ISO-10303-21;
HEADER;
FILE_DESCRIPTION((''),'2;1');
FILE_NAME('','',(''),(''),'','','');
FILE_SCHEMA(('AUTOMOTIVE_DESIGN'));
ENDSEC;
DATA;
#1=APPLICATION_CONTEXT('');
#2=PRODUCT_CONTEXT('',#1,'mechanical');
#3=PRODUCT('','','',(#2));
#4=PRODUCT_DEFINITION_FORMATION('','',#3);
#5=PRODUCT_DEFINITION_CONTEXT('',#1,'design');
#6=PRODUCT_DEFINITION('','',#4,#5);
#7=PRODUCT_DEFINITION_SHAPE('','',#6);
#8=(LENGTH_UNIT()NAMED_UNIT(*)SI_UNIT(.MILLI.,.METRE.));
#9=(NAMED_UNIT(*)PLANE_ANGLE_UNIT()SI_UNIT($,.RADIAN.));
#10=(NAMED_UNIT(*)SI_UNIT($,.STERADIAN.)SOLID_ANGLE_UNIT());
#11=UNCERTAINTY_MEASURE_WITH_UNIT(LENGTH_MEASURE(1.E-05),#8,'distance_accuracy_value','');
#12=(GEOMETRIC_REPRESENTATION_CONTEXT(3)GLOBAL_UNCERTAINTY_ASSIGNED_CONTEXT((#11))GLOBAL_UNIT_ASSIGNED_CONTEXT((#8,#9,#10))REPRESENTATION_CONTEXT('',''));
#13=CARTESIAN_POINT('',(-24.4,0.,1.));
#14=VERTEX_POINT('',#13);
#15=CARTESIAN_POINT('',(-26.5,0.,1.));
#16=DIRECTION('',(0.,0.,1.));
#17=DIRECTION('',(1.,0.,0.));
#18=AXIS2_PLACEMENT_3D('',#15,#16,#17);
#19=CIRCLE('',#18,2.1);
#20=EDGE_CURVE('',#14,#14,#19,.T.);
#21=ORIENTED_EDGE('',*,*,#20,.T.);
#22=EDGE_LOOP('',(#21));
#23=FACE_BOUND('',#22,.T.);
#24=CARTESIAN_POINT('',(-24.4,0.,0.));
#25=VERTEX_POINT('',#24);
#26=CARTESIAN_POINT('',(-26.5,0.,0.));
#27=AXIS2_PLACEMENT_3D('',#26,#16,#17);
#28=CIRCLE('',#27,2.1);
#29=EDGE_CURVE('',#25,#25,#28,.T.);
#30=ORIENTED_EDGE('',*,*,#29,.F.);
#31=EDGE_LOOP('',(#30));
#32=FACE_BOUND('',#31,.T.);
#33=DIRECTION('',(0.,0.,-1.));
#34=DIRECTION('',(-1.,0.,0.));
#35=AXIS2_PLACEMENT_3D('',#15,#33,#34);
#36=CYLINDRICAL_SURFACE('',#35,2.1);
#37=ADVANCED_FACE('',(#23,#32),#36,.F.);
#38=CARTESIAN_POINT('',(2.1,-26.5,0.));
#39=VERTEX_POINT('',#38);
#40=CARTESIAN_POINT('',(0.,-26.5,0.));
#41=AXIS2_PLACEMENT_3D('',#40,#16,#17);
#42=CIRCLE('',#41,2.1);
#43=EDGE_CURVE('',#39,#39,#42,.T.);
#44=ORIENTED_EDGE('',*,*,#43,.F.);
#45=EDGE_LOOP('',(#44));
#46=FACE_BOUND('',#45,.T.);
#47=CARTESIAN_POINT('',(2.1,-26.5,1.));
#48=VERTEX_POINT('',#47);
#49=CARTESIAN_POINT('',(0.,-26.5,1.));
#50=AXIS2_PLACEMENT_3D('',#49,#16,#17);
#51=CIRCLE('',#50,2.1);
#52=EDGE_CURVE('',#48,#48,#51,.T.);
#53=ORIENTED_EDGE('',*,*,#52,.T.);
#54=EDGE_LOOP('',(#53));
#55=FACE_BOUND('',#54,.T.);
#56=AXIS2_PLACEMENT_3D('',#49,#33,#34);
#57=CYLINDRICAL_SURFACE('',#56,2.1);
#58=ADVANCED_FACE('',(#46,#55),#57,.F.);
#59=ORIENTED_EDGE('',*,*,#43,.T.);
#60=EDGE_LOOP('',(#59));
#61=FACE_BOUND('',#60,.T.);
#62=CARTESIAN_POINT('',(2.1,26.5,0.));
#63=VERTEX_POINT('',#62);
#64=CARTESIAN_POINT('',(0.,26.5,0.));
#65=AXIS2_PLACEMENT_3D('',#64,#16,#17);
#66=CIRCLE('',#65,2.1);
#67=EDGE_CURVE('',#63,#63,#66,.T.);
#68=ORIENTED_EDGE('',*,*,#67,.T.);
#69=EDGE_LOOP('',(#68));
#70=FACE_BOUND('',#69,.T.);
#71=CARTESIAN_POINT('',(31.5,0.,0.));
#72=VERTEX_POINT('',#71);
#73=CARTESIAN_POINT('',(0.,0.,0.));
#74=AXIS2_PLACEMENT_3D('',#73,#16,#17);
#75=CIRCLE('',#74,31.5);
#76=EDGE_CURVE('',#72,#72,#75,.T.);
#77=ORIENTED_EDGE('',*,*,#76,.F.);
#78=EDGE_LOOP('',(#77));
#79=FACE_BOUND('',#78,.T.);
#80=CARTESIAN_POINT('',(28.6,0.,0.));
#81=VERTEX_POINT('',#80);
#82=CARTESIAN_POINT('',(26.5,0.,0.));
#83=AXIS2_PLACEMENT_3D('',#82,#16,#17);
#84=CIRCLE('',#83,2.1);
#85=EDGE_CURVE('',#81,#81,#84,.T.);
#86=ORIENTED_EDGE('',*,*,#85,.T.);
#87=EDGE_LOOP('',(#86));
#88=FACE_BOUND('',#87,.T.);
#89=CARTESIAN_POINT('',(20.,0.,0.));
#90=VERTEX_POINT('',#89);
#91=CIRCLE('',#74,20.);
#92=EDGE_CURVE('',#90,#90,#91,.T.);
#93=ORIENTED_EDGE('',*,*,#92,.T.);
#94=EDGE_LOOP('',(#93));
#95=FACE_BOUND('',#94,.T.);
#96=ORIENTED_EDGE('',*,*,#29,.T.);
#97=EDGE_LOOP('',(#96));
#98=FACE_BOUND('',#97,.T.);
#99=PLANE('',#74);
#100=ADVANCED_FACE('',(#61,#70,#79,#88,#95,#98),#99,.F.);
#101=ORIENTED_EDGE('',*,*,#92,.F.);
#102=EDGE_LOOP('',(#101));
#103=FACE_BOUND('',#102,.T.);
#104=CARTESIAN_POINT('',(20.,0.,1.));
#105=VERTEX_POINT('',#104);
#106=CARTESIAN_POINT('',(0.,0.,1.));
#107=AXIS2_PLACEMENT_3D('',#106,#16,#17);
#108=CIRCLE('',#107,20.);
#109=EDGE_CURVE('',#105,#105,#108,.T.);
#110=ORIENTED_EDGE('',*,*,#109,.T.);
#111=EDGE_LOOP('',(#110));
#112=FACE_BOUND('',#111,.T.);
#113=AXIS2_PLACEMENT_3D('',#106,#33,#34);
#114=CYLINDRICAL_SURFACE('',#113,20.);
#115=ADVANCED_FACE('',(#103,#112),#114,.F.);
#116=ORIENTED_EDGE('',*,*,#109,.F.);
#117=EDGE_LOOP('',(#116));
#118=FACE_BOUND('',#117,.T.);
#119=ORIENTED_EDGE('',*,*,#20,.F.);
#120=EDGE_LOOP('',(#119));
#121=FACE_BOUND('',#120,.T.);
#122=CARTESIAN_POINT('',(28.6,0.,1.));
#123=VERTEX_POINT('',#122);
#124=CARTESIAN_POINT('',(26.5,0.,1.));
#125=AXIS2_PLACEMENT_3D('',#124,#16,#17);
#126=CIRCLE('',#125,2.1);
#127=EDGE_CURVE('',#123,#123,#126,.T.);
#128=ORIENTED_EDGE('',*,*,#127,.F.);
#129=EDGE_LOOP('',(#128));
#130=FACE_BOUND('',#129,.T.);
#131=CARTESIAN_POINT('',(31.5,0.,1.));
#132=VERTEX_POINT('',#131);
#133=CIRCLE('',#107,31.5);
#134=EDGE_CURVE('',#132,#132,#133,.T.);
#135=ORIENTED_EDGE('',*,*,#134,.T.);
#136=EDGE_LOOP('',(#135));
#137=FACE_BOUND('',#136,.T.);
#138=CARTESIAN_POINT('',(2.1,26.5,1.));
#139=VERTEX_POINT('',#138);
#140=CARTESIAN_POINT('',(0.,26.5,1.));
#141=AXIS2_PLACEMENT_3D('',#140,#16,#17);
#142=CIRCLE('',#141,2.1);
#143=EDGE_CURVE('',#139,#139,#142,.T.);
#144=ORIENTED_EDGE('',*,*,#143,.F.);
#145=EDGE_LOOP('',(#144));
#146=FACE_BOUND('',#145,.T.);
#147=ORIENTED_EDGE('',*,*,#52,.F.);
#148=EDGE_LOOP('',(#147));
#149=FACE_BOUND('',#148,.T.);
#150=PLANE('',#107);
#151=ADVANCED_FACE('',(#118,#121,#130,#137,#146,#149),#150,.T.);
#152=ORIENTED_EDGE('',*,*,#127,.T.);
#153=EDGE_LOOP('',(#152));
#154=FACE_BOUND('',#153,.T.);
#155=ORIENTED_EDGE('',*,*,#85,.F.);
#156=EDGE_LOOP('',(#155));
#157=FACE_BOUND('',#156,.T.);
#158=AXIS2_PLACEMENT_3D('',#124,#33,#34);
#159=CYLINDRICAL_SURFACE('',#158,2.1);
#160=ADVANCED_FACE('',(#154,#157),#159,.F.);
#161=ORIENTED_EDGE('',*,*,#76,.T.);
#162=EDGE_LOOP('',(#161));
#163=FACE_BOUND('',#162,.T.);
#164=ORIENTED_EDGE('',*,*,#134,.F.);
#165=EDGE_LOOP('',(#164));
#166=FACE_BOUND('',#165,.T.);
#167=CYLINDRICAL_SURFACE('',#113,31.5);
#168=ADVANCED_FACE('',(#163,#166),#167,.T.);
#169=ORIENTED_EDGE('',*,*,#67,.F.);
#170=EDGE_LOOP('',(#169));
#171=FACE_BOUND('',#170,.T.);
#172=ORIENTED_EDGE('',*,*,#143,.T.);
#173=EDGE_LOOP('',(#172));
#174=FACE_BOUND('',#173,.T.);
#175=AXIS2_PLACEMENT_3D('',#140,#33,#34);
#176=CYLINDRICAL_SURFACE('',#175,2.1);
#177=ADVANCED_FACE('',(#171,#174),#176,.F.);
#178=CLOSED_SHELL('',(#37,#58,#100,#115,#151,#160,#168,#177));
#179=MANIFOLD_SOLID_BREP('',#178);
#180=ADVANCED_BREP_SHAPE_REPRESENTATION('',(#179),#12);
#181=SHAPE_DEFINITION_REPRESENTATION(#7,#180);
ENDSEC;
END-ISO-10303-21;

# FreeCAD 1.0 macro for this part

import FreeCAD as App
import Part
import Sketcher
Q = App.Units.Quantity

doc = App.newDocument("Part")
params = doc.addObject("Spreadsheet::Sheet", "Params")
for row, (alias, value) in enumerate([
    ("sketch1_diameter", "63 mm"),
    ("sketch1_diameter2", "40 mm"),
    ("sketch1_diameter3", "4.2 mm"),
    ("pad1_length", "1 mm"),
], start=1):
    params.set(f"A{row}", alias)
    params.set(f"B{row}", "=" + value)
    params.setAlias(f"B{row}", alias)

body = doc.addObject("PartDesign::Body", "Body")

sketch1 = body.newObject("Sketcher::SketchObject", "Sketch")
sketch1.AttachmentSupport = (doc.getObject("XY_Plane"), [""])
sketch1.MapMode = "FlatFace"
sketch1.addGeometry(Part.Circle(App.Vector(0, 0, 0), App.Vector(0, 0, 1), 31.5), False)
sketch1.addGeometry(Part.Circle(App.Vector(0, -26.5, 0), App.Vector(0, 0, 1), 2.1), False)
sketch1.addGeometry(Part.Circle(App.Vector(-26.5, 0, 0), App.Vector(0, 0, 1), 2.1), False)
sketch1.addGeometry(Part.Circle(App.Vector(0, 0, 0), App.Vector(0, 0, 1), 20), False)
sketch1.addGeometry(Part.Circle(App.Vector(26.5, 0, 0), App.Vector(0, 0, 1), 2.1), False)
sketch1.addGeometry(Part.Circle(App.Vector(0, 26.5, 0), App.Vector(0, 0, 1), 2.1), False)
sketch1.addConstraint(Sketcher.Constraint("Coincident", 0, 3, -1, 1))
sketch1.addConstraint(Sketcher.Constraint("Coincident", 3, 3, -1, 1))
sketch1.addConstraint(Sketcher.Constraint("Equal", 1, 2))
sketch1.addConstraint(Sketcher.Constraint("Equal", 2, 4))
sketch1.addConstraint(Sketcher.Constraint("Equal", 4, 5))
sketch1.addConstraint(Sketcher.Constraint("Symmetric", 2, 3, 4, 3, -1, 1))
sketch1.addConstraint(Sketcher.Constraint("Symmetric", 1, 3, 5, 3, -1, 1))
sketch1.addConstraint(Sketcher.Constraint("PointOnObject", 1, 3, -2))
sketch1.addConstraint(Sketcher.Constraint("PointOnObject", 2, 3, -1))
sketch1.addConstraint(Sketcher.Constraint("Diameter", 0, Q("63 mm")))
sketch1.addConstraint(Sketcher.Constraint("Diameter", 3, Q("40 mm")))
sketch1.addConstraint(Sketcher.Constraint("Diameter", 1, Q("4.2 mm")))
sketch1.addConstraint(Sketcher.Constraint("DistanceX", 2, 3, 4, 3, Q("53 mm")))
sketch1.addConstraint(Sketcher.Constraint("DistanceY", 1, 3, 5, 3, Q("53 mm")))
sketch1.setExpression("Constraints[9]", "Params.sketch1_diameter")
sketch1.setExpression("Constraints[10]", "Params.sketch1_diameter2")
sketch1.setExpression("Constraints[11]", "Params.sketch1_diameter3")
pad1 = body.newObject("PartDesign::Pad", "Pad")
pad1.Profile = sketch1
pad1.setExpression("Length", "Params.pad1_length")

doc.recompute()
